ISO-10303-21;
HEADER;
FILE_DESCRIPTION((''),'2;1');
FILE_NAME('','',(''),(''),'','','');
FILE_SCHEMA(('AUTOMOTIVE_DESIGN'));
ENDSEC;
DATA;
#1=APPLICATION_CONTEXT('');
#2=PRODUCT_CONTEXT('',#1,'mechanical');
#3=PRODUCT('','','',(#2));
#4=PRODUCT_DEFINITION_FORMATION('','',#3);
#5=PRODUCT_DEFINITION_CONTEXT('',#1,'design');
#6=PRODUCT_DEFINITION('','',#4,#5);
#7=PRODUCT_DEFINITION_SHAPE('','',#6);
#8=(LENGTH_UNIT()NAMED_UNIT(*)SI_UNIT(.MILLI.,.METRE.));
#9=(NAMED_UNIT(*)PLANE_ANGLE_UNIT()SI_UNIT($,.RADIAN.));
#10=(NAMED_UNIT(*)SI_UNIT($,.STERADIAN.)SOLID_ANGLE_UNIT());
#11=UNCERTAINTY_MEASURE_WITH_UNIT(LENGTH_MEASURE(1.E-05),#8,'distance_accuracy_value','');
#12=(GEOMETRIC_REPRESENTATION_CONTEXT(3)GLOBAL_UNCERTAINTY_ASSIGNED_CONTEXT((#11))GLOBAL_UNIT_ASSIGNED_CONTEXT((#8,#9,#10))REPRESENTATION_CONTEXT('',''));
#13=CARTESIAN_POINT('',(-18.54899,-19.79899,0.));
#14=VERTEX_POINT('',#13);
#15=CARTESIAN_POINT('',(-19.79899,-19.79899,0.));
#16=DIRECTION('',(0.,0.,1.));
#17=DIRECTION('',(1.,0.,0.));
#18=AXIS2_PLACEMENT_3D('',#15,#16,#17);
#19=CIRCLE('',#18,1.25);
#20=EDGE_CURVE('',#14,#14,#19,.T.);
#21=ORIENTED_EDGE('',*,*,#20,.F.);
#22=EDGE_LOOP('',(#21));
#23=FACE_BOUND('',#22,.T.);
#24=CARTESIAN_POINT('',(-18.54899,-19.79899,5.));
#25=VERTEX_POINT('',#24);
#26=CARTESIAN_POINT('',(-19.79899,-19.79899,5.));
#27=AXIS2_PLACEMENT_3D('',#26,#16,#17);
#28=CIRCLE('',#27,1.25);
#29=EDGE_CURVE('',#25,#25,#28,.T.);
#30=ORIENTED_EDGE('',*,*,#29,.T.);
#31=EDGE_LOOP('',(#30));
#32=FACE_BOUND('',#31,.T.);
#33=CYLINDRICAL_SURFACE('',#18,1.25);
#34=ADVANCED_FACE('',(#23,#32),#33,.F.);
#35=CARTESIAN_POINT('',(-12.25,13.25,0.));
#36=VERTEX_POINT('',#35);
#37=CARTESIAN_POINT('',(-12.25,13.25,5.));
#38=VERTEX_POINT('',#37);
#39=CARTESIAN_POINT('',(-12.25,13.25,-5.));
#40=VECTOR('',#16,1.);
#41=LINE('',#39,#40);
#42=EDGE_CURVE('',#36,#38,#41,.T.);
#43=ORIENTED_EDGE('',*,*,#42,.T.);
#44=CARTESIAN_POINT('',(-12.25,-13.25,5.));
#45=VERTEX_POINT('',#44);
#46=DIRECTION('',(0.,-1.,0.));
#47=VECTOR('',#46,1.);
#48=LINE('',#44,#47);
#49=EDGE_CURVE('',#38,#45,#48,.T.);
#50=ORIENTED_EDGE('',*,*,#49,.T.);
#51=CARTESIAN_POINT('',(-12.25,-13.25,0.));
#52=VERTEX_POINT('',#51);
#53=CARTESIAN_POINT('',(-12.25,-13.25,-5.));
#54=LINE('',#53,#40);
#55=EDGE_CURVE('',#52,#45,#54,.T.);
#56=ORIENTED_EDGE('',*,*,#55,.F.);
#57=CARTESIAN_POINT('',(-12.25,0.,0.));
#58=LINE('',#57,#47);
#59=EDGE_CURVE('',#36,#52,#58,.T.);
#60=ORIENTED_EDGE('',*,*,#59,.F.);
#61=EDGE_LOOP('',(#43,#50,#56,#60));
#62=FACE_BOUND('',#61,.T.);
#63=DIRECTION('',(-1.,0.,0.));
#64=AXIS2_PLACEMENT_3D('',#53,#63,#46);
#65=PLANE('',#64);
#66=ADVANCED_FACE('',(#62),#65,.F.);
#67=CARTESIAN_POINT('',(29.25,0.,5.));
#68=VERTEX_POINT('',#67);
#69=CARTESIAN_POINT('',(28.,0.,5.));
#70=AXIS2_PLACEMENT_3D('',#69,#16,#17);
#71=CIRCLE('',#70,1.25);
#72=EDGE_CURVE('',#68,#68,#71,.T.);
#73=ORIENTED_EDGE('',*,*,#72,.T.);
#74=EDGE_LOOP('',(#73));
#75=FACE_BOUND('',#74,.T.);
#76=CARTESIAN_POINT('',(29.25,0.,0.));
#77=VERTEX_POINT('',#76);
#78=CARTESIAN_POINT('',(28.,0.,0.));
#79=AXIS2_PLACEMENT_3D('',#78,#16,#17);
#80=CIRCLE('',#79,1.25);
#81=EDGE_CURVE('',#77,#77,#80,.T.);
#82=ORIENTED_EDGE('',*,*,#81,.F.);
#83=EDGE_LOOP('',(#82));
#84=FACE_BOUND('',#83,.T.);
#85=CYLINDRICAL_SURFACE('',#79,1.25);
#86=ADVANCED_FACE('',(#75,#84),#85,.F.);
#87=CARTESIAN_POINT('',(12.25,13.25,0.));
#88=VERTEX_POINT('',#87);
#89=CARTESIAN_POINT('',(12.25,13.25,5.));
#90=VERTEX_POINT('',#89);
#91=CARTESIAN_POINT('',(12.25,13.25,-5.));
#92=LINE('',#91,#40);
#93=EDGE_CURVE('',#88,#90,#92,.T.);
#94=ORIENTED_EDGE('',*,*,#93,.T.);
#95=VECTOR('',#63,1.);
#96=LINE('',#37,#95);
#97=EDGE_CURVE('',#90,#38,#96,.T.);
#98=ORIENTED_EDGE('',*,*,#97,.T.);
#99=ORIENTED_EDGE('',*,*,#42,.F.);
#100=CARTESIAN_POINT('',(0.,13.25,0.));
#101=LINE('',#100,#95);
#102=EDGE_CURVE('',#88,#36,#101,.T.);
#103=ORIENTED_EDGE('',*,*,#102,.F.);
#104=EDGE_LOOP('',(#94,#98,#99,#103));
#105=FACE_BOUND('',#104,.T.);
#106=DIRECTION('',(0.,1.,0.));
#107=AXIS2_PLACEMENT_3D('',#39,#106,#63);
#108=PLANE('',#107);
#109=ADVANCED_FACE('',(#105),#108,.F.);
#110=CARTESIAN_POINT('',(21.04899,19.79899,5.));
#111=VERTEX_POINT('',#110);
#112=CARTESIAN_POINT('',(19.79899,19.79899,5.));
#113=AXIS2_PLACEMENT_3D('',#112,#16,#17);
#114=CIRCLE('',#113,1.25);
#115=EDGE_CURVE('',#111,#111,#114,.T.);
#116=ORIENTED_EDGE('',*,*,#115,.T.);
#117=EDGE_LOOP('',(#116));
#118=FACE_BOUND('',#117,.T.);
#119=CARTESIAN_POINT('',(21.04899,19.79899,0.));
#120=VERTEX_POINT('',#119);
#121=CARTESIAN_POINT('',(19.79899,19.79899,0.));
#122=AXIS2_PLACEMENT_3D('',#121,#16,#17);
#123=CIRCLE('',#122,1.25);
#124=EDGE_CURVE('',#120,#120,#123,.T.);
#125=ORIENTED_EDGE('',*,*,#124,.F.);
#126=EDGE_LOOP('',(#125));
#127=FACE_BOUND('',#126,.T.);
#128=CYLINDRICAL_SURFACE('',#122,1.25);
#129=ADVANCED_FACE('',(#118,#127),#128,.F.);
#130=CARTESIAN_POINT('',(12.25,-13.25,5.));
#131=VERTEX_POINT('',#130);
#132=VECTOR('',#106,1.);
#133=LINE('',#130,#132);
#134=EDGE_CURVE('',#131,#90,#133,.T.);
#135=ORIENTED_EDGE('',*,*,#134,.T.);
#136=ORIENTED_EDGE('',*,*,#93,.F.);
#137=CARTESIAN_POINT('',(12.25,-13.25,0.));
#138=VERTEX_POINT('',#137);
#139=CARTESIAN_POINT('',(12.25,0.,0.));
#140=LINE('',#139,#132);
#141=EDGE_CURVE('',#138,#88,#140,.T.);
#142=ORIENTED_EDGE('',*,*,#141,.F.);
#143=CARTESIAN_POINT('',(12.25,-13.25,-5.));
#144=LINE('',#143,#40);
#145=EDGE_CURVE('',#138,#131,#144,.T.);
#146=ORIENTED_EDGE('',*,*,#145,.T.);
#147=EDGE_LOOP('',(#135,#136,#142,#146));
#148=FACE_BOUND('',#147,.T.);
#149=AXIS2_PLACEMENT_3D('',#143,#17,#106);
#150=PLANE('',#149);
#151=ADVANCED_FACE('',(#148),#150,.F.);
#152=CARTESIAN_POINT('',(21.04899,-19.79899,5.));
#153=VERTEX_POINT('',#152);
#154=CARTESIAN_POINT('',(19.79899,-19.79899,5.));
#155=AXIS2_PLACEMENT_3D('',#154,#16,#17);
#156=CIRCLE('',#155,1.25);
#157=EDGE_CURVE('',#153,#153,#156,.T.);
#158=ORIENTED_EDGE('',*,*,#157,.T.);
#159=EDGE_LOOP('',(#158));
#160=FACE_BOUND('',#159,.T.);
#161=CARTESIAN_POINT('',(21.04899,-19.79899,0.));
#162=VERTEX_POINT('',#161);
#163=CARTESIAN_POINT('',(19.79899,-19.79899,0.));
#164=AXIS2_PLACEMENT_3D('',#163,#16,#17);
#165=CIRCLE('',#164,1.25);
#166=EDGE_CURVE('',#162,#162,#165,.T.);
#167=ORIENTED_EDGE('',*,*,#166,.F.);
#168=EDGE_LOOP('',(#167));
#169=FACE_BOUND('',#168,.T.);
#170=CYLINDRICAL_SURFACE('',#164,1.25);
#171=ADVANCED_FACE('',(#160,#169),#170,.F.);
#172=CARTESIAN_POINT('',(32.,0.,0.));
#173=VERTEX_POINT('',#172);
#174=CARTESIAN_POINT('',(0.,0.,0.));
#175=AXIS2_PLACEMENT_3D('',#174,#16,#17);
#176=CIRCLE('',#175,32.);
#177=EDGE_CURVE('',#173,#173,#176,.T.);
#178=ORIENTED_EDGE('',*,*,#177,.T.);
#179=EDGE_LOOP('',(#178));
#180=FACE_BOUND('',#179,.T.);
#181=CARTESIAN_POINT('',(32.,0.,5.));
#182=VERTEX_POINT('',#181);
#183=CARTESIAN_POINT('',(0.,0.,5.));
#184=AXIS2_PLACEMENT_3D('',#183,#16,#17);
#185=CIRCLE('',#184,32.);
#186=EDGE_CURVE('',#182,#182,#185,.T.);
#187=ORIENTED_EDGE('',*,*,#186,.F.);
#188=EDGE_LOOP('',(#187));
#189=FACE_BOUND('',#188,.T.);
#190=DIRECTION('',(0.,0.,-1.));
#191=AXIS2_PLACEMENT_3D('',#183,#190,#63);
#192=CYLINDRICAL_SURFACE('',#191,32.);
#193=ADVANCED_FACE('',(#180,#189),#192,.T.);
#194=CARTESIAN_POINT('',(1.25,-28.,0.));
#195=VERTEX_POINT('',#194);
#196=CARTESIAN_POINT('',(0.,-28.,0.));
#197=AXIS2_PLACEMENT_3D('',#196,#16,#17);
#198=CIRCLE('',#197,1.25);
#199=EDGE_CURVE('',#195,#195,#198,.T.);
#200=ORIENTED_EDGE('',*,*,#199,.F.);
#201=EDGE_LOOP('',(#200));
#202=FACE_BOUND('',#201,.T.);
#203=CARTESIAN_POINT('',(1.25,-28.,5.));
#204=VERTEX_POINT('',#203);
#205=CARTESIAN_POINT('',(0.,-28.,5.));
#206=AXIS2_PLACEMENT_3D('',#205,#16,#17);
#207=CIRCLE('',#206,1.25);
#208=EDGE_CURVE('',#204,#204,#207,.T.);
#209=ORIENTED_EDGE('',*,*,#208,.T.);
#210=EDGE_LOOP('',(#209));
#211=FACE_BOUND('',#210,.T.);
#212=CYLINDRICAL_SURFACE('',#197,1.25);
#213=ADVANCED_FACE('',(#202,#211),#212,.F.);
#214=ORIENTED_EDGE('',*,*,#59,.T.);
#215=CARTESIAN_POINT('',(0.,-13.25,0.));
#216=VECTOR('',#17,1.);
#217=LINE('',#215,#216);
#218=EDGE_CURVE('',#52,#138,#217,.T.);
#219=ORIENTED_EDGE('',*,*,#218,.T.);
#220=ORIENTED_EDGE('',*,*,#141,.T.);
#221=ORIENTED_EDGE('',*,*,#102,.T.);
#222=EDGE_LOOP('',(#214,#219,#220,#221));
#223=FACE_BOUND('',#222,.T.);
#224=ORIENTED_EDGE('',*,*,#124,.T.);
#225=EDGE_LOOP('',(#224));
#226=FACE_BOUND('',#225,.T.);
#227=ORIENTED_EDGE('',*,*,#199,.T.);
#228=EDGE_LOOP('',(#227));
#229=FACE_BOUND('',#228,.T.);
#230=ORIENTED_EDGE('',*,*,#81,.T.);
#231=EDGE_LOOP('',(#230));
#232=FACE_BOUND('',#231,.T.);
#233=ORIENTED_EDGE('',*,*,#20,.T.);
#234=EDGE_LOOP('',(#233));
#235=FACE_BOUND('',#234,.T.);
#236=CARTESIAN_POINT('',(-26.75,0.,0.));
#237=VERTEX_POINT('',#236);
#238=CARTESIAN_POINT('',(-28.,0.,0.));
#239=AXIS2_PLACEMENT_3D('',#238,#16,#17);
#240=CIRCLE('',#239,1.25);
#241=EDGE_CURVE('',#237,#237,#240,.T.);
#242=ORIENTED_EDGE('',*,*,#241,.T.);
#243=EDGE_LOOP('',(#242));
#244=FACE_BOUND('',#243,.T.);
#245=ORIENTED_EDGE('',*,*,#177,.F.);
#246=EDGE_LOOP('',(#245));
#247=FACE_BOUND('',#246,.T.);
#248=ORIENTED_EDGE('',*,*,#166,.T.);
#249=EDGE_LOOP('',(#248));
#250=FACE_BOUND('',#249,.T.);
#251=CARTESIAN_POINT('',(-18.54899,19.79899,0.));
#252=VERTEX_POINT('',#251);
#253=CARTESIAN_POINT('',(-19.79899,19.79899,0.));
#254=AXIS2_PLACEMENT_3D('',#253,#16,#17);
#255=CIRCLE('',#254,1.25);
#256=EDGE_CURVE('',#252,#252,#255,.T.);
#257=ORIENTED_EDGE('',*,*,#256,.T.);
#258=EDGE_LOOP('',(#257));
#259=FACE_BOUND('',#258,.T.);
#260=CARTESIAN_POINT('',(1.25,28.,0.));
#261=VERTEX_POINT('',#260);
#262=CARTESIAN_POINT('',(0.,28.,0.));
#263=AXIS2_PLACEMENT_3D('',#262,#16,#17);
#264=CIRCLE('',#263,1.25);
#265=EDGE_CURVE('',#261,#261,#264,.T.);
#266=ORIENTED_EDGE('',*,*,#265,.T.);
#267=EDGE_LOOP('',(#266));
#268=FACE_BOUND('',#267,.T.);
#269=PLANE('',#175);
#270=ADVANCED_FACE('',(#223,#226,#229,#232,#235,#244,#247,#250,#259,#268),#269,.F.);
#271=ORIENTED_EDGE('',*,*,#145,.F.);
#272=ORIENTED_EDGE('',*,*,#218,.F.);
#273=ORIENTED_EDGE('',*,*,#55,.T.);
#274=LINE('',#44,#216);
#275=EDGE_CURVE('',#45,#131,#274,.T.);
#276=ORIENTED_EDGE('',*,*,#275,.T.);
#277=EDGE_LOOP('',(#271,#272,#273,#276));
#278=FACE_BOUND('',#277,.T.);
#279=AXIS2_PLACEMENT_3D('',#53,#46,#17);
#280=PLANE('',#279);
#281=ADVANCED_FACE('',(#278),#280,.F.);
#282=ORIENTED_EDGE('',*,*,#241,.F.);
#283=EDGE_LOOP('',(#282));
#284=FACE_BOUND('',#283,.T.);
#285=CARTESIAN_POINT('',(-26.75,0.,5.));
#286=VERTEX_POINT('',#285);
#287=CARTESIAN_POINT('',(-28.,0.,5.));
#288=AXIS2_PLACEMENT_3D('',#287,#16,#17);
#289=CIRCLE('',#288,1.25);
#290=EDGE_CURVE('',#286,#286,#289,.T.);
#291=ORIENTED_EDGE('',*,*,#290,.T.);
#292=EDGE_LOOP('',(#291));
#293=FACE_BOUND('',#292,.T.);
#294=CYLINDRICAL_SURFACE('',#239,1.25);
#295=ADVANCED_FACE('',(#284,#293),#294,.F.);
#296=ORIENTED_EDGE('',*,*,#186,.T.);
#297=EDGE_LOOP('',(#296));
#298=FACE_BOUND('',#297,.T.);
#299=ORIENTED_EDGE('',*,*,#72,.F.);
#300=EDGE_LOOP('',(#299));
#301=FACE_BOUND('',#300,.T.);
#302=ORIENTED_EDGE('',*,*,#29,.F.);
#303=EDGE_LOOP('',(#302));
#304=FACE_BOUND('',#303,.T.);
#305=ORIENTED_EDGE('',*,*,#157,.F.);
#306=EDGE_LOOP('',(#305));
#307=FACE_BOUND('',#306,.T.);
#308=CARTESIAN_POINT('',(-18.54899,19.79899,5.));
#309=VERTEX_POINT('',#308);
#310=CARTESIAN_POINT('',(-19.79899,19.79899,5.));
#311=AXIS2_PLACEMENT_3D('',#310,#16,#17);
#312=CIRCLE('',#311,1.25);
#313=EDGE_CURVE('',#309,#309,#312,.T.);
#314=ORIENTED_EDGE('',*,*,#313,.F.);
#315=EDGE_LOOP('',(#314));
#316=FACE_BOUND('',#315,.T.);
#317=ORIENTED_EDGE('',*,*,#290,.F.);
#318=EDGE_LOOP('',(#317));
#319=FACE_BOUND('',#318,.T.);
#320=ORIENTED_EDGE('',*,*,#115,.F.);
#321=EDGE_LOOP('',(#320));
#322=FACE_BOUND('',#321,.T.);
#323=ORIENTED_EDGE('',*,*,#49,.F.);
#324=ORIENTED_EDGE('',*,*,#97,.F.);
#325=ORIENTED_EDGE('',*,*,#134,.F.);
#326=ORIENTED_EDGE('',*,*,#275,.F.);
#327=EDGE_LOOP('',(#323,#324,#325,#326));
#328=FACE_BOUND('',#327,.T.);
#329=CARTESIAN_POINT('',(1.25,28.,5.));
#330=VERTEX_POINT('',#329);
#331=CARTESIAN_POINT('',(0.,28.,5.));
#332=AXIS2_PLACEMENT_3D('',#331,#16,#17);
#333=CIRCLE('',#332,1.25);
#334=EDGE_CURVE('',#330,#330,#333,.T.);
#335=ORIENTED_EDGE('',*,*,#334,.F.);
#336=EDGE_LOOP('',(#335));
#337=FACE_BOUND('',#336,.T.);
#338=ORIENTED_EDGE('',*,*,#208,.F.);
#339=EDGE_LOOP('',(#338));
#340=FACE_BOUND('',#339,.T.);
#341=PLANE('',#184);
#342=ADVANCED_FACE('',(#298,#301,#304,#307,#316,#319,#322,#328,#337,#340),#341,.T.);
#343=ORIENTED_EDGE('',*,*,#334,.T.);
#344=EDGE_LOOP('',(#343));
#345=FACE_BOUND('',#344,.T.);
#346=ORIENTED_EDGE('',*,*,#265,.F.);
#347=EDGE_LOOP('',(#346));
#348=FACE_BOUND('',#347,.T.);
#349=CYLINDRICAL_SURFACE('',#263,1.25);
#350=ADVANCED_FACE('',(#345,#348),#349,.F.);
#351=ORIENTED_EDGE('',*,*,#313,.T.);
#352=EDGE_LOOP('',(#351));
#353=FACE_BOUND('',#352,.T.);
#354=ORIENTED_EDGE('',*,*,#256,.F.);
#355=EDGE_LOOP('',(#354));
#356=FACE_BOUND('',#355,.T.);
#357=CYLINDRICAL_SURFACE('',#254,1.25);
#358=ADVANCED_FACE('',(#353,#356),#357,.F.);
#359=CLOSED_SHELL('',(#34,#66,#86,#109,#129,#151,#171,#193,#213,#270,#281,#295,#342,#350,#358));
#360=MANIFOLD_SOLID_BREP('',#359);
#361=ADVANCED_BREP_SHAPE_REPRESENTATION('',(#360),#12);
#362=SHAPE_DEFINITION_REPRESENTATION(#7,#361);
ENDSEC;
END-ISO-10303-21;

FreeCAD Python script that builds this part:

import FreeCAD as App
import Part
import Sketcher

doc = App.newDocument("Part")
body = doc.addObject("PartDesign::Body", "Body")

# Sketch on XY plane
sketch1 = body.newObject("Sketcher::SketchObject", "Sketch")
sketch1.AttachmentSupport = (doc.getObject("XY_Plane"), [""])
sketch1.MapMode = "FlatFace"
sketch1.addGeometry(Part.Circle(App.Vector(0, 0, 0), App.Vector(0, 0, 1), 32), False)
sketch1.addConstraint(Sketcher.Constraint("Coincident", 0, 3, -1, 1))
sketch1.addConstraint(Sketcher.Constraint("Diameter", 0, 64.0))
pad1 = body.newObject("PartDesign::Pad", "Pad")
pad1.Profile = sketch1
pad1.Length = 5

# Sketch on XY plane
sketch2 = body.newObject("Sketcher::SketchObject", "Sketch001")
sketch2.AttachmentSupport = (doc.getObject("XY_Plane"), [""])
sketch2.MapMode = "FlatFace"
sketch2.AttachmentOffset = App.Placement(App.Vector(0, 0, 5), App.Rotation())
sketch2.addGeometry(Part.Circle(App.Vector(0, 28, 0), App.Vector(0, 0, 1), 1.2), False)
sketch2.addGeometry(Part.Circle(App.Vector(19.8, 19.8, 0), App.Vector(0, 0, 1), 1.2), False)
sketch2.addGeometry(Part.Circle(App.Vector(28, 0, 0), App.Vector(0, 0, 1), 1.2), False)
sketch2.addGeometry(Part.Circle(App.Vector(19.8, -19.8, 0), App.Vector(0, 0, 1), 1.2), False)
sketch2.addGeometry(Part.Circle(App.Vector(0, -28, 0), App.Vector(0, 0, 1), 1.2), False)
sketch2.addGeometry(Part.Circle(App.Vector(-19.8, -19.8, 0), App.Vector(0, 0, 1), 1.2), False)
sketch2.addGeometry(Part.Circle(App.Vector(-28, 0, 0), App.Vector(0, 0, 1), 1.2), False)
sketch2.addGeometry(Part.Circle(App.Vector(-19.8, 19.8, 0), App.Vector(0, 0, 1), 1.2), False)
sketch2.addConstraint(Sketcher.Constraint("Equal", 0, 1))
sketch2.addConstraint(Sketcher.Constraint("Equal", 1, 2))
sketch2.addConstraint(Sketcher.Constraint("Equal", 2, 3))
sketch2.addConstraint(Sketcher.Constraint("Equal", 3, 4))
sketch2.addConstraint(Sketcher.Constraint("Equal", 4, 5))
sketch2.addConstraint(Sketcher.Constraint("Equal", 5, 6))
sketch2.addConstraint(Sketcher.Constraint("Equal", 6, 7))
sketch2.addConstraint(Sketcher.Constraint("Symmetric", 0, 3, 4, 3, -1, 1))
sketch2.addConstraint(Sketcher.Constraint("Symmetric", 1, 3, 5, 3, -1, 1))
sketch2.addConstraint(Sketcher.Constraint("Symmetric", 2, 3, 6, 3, -1, 1))
sketch2.addConstraint(Sketcher.Constraint("Symmetric", 3, 3, 7, 3, -1, 1))
sketch2.addConstraint(Sketcher.Constraint("Symmetric", 3, 3, 5, 3, -2))
sketch2.addConstraint(Sketcher.Constraint("PointOnObject", 0, 3, -2))
sketch2.addConstraint(Sketcher.Constraint("PointOnObject", 2, 3, -1))
sketch2.addConstraint(Sketcher.Constraint("Diameter", 0, 2.5))
sketch2.addConstraint(Sketcher.Constraint("DistanceY", -1, 1, 0, 3, 28.0))
sketch2.addConstraint(Sketcher.Constraint("DistanceX", -1, 1, 2, 3, 28.0))
sketch2.addConstraint(Sketcher.Constraint("DistanceX", -1, 1, 1, 3, 19.79899))
sketch2.addConstraint(Sketcher.Constraint("DistanceY", -1, 1, 1, 3, 19.79899))
pocket1 = body.newObject("PartDesign::Pocket", "Pocket")
pocket1.Profile = sketch2
pocket1.Type = "ThroughAll"

# Sketch on XY plane
sketch3 = body.newObject("Sketcher::SketchObject", "Sketch002")
sketch3.AttachmentSupport = (doc.getObject("XY_Plane"), [""])
sketch3.MapMode = "FlatFace"
sketch3.AttachmentOffset = App.Placement(App.Vector(0, 0, 5), App.Rotation())
sketch3.addGeometry(Part.LineSegment(App.Vector(-12, 13, 0), App.Vector(-12, -13, 0)), False)
sketch3.addGeometry(Part.LineSegment(App.Vector(-12, -13, 0), App.Vector(12, -13, 0)), False)
sketch3.addGeometry(Part.LineSegment(App.Vector(12, -13, 0), App.Vector(12, 13, 0)), False)
sketch3.addGeometry(Part.LineSegment(App.Vector(12, 13, 0), App.Vector(-12, 13, 0)), False)
sketch3.addConstraint(Sketcher.Constraint("Coincident", 0, 2, 1, 1))
sketch3.addConstraint(Sketcher.Constraint("Coincident", 1, 2, 2, 1))
sketch3.addConstraint(Sketcher.Constraint("Coincident", 2, 2, 3, 1))
sketch3.addConstraint(Sketcher.Constraint("Coincident", 3, 2, 0, 1))
sketch3.addConstraint(Sketcher.Constraint("Vertical", 0))
sketch3.addConstraint(Sketcher.Constraint("Horizontal", 1))
sketch3.addConstraint(Sketcher.Constraint("Vertical", 2))
sketch3.addConstraint(Sketcher.Constraint("Horizontal", 3))
sketch3.addConstraint(Sketcher.Constraint("Symmetric", 0, 2, 2, 2, -1, 1))
sketch3.addConstraint(Sketcher.Constraint("DistanceX", 1, 1, 1, 2, 24.5))
sketch3.addConstraint(Sketcher.Constraint("DistanceY", 0, 2, 0, 1, 26.5))
pocket2 = body.newObject("PartDesign::Pocket", "Pocket001")
pocket2.Profile = sketch3
pocket2.Length = 10

doc.recompute()
